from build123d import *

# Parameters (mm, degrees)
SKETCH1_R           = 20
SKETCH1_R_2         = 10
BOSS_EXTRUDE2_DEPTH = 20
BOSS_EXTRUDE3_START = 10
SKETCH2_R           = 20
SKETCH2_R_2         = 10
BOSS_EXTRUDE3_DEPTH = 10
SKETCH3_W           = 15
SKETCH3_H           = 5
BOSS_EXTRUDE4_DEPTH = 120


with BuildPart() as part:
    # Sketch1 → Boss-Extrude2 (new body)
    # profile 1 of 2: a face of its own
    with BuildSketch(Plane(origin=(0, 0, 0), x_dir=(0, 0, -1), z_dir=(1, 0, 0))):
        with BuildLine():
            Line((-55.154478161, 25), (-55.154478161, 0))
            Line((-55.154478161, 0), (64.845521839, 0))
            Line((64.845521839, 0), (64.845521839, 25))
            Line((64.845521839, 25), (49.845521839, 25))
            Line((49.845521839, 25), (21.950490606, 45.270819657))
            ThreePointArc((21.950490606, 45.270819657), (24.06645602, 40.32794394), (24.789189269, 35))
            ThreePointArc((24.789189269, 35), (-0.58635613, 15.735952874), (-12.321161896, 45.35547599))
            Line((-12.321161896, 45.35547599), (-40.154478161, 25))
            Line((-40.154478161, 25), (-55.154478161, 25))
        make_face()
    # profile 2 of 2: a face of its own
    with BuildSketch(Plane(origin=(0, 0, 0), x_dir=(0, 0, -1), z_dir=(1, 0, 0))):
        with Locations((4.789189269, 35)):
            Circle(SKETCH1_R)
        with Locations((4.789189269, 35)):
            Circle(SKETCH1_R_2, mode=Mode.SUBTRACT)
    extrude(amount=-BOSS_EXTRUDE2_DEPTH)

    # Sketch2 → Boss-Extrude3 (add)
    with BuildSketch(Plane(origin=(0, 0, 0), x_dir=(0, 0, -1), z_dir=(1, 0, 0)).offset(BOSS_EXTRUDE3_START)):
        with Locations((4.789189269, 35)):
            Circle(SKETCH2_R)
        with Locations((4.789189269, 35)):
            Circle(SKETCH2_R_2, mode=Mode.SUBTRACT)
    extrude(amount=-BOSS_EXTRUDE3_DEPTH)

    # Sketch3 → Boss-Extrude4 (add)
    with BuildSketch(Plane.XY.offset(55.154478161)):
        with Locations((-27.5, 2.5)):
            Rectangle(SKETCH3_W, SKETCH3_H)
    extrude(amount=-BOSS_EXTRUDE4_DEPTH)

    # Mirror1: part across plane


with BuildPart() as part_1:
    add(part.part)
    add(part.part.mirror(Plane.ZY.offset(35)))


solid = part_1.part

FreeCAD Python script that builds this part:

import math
import FreeCAD as App
import Part
import Sketcher
from FreeCAD import Vector
Q = App.Units.Quantity

doc = App.newDocument("Part")
body = doc.addObject("PartDesign::Body", "Body")

# Sketch on YZ plane
sketch1 = doc.addObject("Sketcher::SketchObject", "Sketch")
body.addObject(sketch1)
sketch1.AttachmentSupport = (doc.YZ_Plane, [""])
sketch1.MapMode = "FlatFace"
sketch1.addGeometry([
    Part.LineSegment(Vector(25, 55, 0), Vector(0, 55, 0)),  # 0
    Part.LineSegment(Vector(0, 55, 0), Vector(0, -65, 0)),  # 1
    Part.LineSegment(Vector(0, -65, 0), Vector(25, -65, 0)),  # 2
    Part.LineSegment(Vector(25, -65, 0), Vector(25, -50, 0)),  # 3
    Part.LineSegment(Vector(25, -50, 0), Vector(45, -22, 0)),  # 4
    Part.ArcOfCircle(Part.Circle(Vector(35, -5, 0), Vector(0, 0, 1), 20), math.radians(-59), math.radians(59)),  # 5
    Part.LineSegment(Vector(45, 12, 0), Vector(25, 40, 0)),  # 6
    Part.LineSegment(Vector(25, 40, 0), Vector(25, 55, 0)),  # 7
    Part.Circle(Vector(35, -5, 0), Vector(0, 0, 1), 10),  # 8
], False)
sketch1.addConstraint([
    Sketcher.Constraint("Coincident", 0, 2, 1, 1),
    Sketcher.Constraint("Coincident", 1, 2, 2, 1),
    Sketcher.Constraint("Coincident", 2, 2, 3, 1),
    Sketcher.Constraint("Coincident", 3, 2, 4, 1),
    Sketcher.Constraint("Coincident", 4, 2, 5, 1),
    Sketcher.Constraint("Coincident", 5, 2, 6, 1),
    Sketcher.Constraint("Coincident", 6, 2, 7, 1),
    Sketcher.Constraint("Coincident", 7, 2, 0, 1),
    Sketcher.Constraint("Horizontal", 0),
    Sketcher.Constraint("Vertical", 1),
    Sketcher.Constraint("Horizontal", 2),
    Sketcher.Constraint("Vertical", 3),
    Sketcher.Constraint("Vertical", 7),
    Sketcher.Constraint("Coincident", 8, 3, 5, 3),
    Sketcher.Constraint("PointOnObject", 0, 2, -2),
    Sketcher.Constraint("Vertical", 3, 2, 6, 2),
    Sketcher.Constraint("Equal", 3, 7),
    Sketcher.Constraint("Equal", 4, 6),
    Sketcher.Constraint("Diameter", 8, Q("20 mm")),
    Sketcher.Constraint("Radius", 5, Q("20 mm")),
    Sketcher.Constraint("DistanceX", 0, 2, 0, 1, Q("25 mm")),
    Sketcher.Constraint("DistanceY", 1, 2, 1, 1, Q("120 mm")),
    Sketcher.Constraint("DistanceY", 3, 1, 3, 2, Q("15 mm")),
    Sketcher.Constraint("DistanceX", -1, 1, 5, 3, Q("35 mm")),
    Sketcher.Constraint("DistanceY", 4, 2, 5, 3, Q("17.161301 mm")),
    Sketcher.Constraint("DistanceY", 5, 3, -1, 1, Q("4.789189 mm")),
    Sketcher.Constraint("DistanceY", -1, 1, 0, 2, Q("55.154478 mm")),
])
pad1 = doc.addObject("PartDesign::Pad", "Pad")
body.addObject(pad1)
pad1.Profile = sketch1
pad1.Length = 20
pad1.Reversed = True

# Sketch on YZ plane
sketch2 = doc.addObject("Sketcher::SketchObject", "Sketch001")
body.addObject(sketch2)
sketch2.AttachmentSupport = (doc.YZ_Plane, [""])
sketch2.MapMode = "FlatFace"
sketch2.AttachmentOffset = App.Placement(Vector(0, 0, 10), App.Rotation())
sketch2.addGeometry([
    Part.Circle(Vector(35, -5, 0), Vector(0, 0, 1), 20),
    Part.Circle(Vector(35, -5, 0), Vector(0, 0, 1), 10),
], False)
sketch2.addConstraint([
    Sketcher.Constraint("Coincident", 1, 3, 0, 3),
    Sketcher.Constraint("Diameter", 0, Q("40 mm")),
    Sketcher.Constraint("Diameter", 1, Q("20 mm")),
    Sketcher.Constraint("DistanceX", -1, 1, 0, 3, Q("35 mm")),
    Sketcher.Constraint("DistanceY", 0, 3, -1, 1, Q("4.789189 mm")),
])
pad2 = doc.addObject("PartDesign::Pad", "Pad001")
body.addObject(pad2)
pad2.Profile = sketch2
pad2.Length = 10
pad2.Reversed = True

# Sketch on XY plane
sketch3 = doc.addObject("Sketcher::SketchObject", "Sketch002")
body.addObject(sketch3)
sketch3.AttachmentSupport = (doc.XY_Plane, [""])
sketch3.MapMode = "FlatFace"
sketch3.AttachmentOffset = App.Placement(Vector(0, 0, 55.154478), App.Rotation())
sketch3.addGeometry([
    Part.LineSegment(Vector(-35, 5, 0), Vector(-35, 0, 0)),
    Part.LineSegment(Vector(-35, 0, 0), Vector(-20, 0, 0)),
    Part.LineSegment(Vector(-20, 0, 0), Vector(-20, 5, 0)),
    Part.LineSegment(Vector(-20, 5, 0), Vector(-35, 5, 0)),
], False)
sketch3.addConstraint([
    Sketcher.Constraint("Coincident", 0, 2, 1, 1),
    Sketcher.Constraint("Coincident", 1, 2, 2, 1),
    Sketcher.Constraint("Coincident", 2, 2, 3, 1),
    Sketcher.Constraint("Coincident", 3, 2, 0, 1),
    Sketcher.Constraint("Vertical", 0),
    Sketcher.Constraint("Horizontal", 1),
    Sketcher.Constraint("Vertical", 2),
    Sketcher.Constraint("Horizontal", 3),
    Sketcher.Constraint("PointOnObject", 0, 2, -1),
    Sketcher.Constraint("DistanceX", 1, 1, 1, 2, Q("15 mm")),
    Sketcher.Constraint("DistanceY", 0, 2, 0, 1, Q("5 mm")),
    Sketcher.Constraint("DistanceX", 0, 2, -1, 1, Q("35 mm")),
])
pad3 = doc.addObject("PartDesign::Pad", "Pad002")
body.addObject(pad3)
pad3.Profile = sketch3
pad3.Length = 120
pad3.Reversed = True
body2 = doc.addObject("PartDesign::Body", "Body001")
doc.recompute()

body2.BaseFeature = body
doc.recompute()

mirroring = doc.addObject("Part::Mirroring", "Mirroring")
mirroring.Source = body
mirroring.Base = Vector(-35, 0, 0)
mirroring.Normal = Vector(-1, 0, 0)
body3 = doc.addObject("PartDesign::Body", "Body002")
body3.BaseFeature = mirroring
boolean = doc.addObject("PartDesign::Boolean", "Boolean")
body2.addObject(boolean)
boolean.Type = "Fuse"
boolean.addObjects([body3])
doc.recompute()
mirroring.Visibility = False

doc.recompute()
